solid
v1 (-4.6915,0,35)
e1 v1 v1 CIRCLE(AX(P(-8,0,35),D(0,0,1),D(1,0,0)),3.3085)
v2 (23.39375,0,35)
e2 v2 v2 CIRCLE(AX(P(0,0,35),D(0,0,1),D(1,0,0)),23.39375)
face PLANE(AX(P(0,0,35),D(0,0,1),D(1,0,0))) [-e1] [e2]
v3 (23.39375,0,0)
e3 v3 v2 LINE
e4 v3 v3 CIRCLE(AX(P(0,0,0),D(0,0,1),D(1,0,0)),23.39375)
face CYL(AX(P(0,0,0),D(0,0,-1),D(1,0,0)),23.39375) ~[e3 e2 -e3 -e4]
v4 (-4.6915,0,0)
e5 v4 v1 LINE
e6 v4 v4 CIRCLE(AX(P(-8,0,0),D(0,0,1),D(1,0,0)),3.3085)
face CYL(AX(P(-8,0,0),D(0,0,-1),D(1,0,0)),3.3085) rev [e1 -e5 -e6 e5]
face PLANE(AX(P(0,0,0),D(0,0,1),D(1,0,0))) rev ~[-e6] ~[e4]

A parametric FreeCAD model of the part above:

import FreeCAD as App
import Part
import Sketcher
Q = App.Units.Quantity

doc = App.newDocument("Part")
body = doc.addObject("PartDesign::Body", "Body")

# Sketch on XY plane
sketch1 = body.newObject("Sketcher::SketchObject", "Sketch")
sketch1.AttachmentSupport = (doc.getObject("XY_Plane"), [""])
sketch1.MapMode = "FlatFace"
sketch1.addGeometry(Part.Circle(App.Vector(0, 0, 0), App.Vector(0, 0, 1), 23.39375), False)
sketch1.addGeometry(Part.Circle(App.Vector(-8, 0, 0), App.Vector(0, 0, 1), 3.3085), False)
sketch1.addConstraint(Sketcher.Constraint("Coincident", 0, 3, -1, 1))
sketch1.addConstraint(Sketcher.Constraint("PointOnObject", 1, 3, -1))
sketch1.addConstraint(Sketcher.Constraint("Diameter", 1, Q("6.617 mm")))
sketch1.addConstraint(Sketcher.Constraint("DistanceX", 1, 3, -1, 1, Q("8 mm")))
sketch1.addConstraint(Sketcher.Constraint("Diameter", 0, Q("46.7875 mm")))
pad1 = body.newObject("PartDesign::Pad", "Pad")
pad1.Profile = sketch1
pad1.Length = 35

doc.recompute()
